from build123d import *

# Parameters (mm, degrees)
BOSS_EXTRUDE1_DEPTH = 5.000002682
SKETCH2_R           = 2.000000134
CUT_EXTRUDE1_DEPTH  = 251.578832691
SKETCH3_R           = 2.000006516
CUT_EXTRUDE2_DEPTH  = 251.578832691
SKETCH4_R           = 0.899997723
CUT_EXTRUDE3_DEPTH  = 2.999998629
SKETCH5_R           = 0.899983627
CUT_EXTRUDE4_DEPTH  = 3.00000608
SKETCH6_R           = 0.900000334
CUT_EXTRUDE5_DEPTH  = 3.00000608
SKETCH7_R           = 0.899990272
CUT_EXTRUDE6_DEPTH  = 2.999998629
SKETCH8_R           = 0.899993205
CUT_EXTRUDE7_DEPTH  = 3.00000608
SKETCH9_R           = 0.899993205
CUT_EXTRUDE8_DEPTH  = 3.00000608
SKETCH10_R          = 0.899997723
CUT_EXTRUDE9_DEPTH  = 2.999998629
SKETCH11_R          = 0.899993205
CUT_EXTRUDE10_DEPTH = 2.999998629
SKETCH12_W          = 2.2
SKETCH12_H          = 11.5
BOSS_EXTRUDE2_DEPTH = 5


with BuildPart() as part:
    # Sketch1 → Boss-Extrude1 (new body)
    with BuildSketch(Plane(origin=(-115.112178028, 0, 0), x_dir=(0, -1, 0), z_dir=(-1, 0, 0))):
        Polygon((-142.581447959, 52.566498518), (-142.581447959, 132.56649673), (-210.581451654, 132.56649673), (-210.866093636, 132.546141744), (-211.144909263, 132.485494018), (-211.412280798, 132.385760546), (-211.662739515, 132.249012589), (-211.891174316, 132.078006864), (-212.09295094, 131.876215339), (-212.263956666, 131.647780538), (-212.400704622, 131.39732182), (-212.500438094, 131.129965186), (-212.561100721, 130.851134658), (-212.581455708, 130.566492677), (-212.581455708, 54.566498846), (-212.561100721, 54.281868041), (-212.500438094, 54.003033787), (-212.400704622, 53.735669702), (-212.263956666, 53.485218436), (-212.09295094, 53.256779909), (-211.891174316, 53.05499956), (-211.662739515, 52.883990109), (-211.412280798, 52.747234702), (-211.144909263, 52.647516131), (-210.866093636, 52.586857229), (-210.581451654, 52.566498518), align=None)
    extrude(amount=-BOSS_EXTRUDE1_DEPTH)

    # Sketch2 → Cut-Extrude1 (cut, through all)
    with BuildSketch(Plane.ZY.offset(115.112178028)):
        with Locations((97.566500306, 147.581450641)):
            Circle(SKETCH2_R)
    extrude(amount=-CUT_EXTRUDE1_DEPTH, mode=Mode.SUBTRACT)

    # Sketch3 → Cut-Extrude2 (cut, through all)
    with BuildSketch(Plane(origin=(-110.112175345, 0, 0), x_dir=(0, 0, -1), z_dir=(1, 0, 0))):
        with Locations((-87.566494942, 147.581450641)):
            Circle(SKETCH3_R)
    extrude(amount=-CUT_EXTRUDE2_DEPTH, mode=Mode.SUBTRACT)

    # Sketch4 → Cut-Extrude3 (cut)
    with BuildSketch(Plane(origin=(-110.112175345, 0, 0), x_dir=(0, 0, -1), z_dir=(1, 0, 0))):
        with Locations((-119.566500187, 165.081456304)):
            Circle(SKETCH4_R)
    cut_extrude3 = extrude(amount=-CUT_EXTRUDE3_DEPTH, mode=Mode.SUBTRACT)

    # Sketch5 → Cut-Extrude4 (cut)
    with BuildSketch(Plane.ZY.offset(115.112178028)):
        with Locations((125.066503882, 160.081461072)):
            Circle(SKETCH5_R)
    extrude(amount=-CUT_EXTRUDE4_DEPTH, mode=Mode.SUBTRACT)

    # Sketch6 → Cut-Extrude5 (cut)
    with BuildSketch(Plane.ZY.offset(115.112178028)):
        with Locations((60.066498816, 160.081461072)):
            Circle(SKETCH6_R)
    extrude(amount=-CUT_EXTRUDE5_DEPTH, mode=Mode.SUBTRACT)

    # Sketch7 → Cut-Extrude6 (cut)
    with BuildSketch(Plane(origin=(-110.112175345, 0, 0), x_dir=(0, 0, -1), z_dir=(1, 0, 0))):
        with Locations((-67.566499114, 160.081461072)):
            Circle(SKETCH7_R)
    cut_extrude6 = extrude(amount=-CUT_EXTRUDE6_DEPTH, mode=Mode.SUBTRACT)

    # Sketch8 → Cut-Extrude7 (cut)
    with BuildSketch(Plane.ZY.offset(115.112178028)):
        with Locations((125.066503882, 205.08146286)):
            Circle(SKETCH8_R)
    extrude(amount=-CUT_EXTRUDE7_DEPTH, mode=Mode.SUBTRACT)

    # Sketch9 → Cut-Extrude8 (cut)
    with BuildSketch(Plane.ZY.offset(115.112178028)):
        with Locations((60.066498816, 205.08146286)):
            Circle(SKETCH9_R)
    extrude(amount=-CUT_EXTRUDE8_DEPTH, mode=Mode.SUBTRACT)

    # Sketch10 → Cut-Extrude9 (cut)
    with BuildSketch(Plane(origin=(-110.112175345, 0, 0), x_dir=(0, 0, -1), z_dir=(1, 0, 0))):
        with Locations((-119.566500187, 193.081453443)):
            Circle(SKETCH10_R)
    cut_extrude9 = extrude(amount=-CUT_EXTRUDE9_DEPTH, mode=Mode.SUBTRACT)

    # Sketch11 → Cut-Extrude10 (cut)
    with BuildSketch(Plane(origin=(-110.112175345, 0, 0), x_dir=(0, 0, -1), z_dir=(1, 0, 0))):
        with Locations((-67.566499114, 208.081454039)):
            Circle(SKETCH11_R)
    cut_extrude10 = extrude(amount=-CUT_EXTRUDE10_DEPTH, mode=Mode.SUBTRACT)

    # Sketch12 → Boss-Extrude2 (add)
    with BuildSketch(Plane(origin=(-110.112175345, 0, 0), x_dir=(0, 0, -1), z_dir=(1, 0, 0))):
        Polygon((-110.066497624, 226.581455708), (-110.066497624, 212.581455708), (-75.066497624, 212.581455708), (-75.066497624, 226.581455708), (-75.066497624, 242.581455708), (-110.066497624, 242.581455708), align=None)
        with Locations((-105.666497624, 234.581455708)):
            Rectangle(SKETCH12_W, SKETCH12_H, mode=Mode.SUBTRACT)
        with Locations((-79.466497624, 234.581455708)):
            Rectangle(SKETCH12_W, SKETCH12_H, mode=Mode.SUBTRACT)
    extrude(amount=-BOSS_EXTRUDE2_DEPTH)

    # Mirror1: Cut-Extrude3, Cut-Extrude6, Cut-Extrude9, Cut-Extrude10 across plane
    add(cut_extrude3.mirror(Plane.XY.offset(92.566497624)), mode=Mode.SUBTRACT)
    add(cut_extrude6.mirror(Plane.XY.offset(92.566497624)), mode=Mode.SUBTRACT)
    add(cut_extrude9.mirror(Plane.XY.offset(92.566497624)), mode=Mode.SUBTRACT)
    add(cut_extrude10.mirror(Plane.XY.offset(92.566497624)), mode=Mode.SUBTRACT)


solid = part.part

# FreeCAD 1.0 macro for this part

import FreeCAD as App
import Part
import Sketcher

V = App.Vector
Q = App.Units.Quantity


def add_polygon(sketch, points):
    """Adds a closed chain of lines whose ends are joined by coincident constraints."""
    first, n = sketch.GeometryCount, len(points)
    for a, b in zip(points, points[1:] + points[:1]):
        sketch.addGeometry(Part.LineSegment(App.Vector(*a, 0), App.Vector(*b, 0)), False)
    for i in range(n):
        sketch.addConstraint(Sketcher.Constraint("Coincident", first + i, 2, first + (i + 1) % n, 1))

doc = App.newDocument("Part")
params = doc.addObject("Spreadsheet::Sheet", "Params")
for row, (alias, value) in enumerate([
    ("sketch1_height", "79.999998 mm"),
    ("pad1_length", "5.000003 mm"),
    ("sketch2_diameter", "4 mm"),
    ("pocket3_length", "2.999999 mm"),
    ("pocket4_length", "3.000006 mm"),
    ("sketch6_diameter", "1.800001 mm"),
    ("pocket5_length", "3.000006 mm"),
    ("pocket6_length", "2.999999 mm"),
    ("pocket7_length", "3.000006 mm"),
    ("pocket8_length", "3.000006 mm"),
    ("pocket9_length", "2.999999 mm"),
    ("pocket10_length", "2.999999 mm"),
    ("sketch12_width", "30 mm"),
    ("sketch12_height", "35 mm"),
    ("sketch12_width2", "11.5 mm"),
    ("sketch12_height2", "2.2 mm"),
    ("pad2_length", "5 mm"),
], start=1):
    params.set(f"A{row}", alias)
    params.set(f"B{row}", "=" + value)
    params.setAlias(f"B{row}", alias)

body = doc.addObject("PartDesign::Body", "Body")

# Sketch on YZ plane
sketch1 = doc.addObject("Sketcher::SketchObject", "Sketch")
body.addObject(sketch1)
sketch1.AttachmentSupport = (doc.YZ_Plane, [""])
sketch1.MapMode = "FlatFace"
sketch1.AttachmentOffset = App.Placement(V(0, 0, -115.112178), App.Rotation())
add_polygon(sketch1, [(142.581448, 52.566499), (142.581448, 132.566497), (210.581452, 132.566497), (210.866094, 132.546142), (211.144909, 132.485494), (211.412281, 132.385761), (211.66274, 132.249013), (211.891174, 132.078007), (212.092951, 131.876215), (212.263957, 131.647781), (212.400705, 131.397322), (212.500438, 131.129965), (212.561101, 130.851135), (212.581456, 130.566493), (212.581456, 54.566499), (212.561101, 54.281868), (212.500438, 54.003034), (212.400705, 53.73567), (212.263957, 53.485218), (212.092951, 53.25678), (211.891174, 53.055), (211.66274, 52.88399), (211.412281, 52.747235), (211.144909, 52.647516), (210.866094, 52.586857), (210.581452, 52.566499)])  # lines 0-25
sketch1.addConstraint([
    Sketcher.Constraint("Vertical", 0),
    Sketcher.Constraint("Horizontal", 1),
    Sketcher.Constraint("Vertical", 13),
    Sketcher.Constraint("Horizontal", 25),
    Sketcher.Constraint("Perpendicular", 11, 23),
    Sketcher.Constraint("Vertical", 11, 2, 14, 2),
    Sketcher.Constraint("Vertical", 10, 2, 15, 2),
    Sketcher.Constraint("Vertical", 9, 2, 16, 2),
    Sketcher.Constraint("Vertical", 8, 2, 17, 2),
    Sketcher.Constraint("Vertical", 7, 2, 18, 2),
    Sketcher.Constraint("Vertical", 6, 2, 19, 2),
    Sketcher.Constraint("Vertical", 5, 2, 20, 2),
    Sketcher.Constraint("Vertical", 4, 2, 21, 2),
    Sketcher.Constraint("Vertical", 3, 2, 22, 2),
    Sketcher.Constraint("Vertical", 2, 2, 23, 2),
    Sketcher.Constraint("Vertical", 1, 2, 24, 2),
    Sketcher.Constraint("Equal", 2, 4),
    Sketcher.Constraint("Equal", 4, 7),
    Sketcher.Constraint("Equal", 6, 8),
    Sketcher.Constraint("Equal", 5, 9),
    Sketcher.Constraint("Equal", 8, 10),
    Sketcher.Constraint("Equal", 10, 11),
    Sketcher.Constraint("Equal", 4, 12),
    Sketcher.Constraint("Equal", 9, 14),
    Sketcher.Constraint("Equal", 14, 15),
    Sketcher.Constraint("Equal", 9, 16),
    Sketcher.Constraint("Equal", 11, 17),
    Sketcher.Constraint("Equal", 11, 18),
    Sketcher.Constraint("Equal", 15, 19),
    Sketcher.Constraint("Equal", 18, 20),
    Sketcher.Constraint("Equal", 21, 22),
    Sketcher.Constraint("Equal", 12, 24),
    Sketcher.Constraint("DistanceY", 0, 1, 0, 2, Q("79.999998 mm")),
    Sketcher.Constraint("DistanceY", -1, 1, 19, 2, Q("53.055 mm")),
    Sketcher.Constraint("DistanceX", -1, 1, 11, 2, Q("212.561101 mm")),
    Sketcher.Constraint("DistanceY", -1, 1, 13, 2, Q("54.566499 mm")),
    Sketcher.Constraint("DistanceY", -1, 1, 24, 2, Q("52.566499 mm")),
    Sketcher.Constraint("DistanceX", 5, 2, 10, 2, Q("0.837699 mm")),
    Sketcher.Constraint("DistanceX", 8, 2, 12, 2, Q("0.317499 mm")),
    Sketcher.Constraint("DistanceY", 15, 2, 11, 2, Q("76.848101 mm")),
    Sketcher.Constraint("DistanceY", 16, 2, 14, 2, Q("0.546198 mm")),
    Sketcher.Constraint("Distance", 2, Q("0.285369 mm")),
    Sketcher.Constraint("Distance", 5, Q("0.285359 mm")),
    Sketcher.Constraint("Distance", 6, Q("0.285351 mm")),
    Sketcher.Constraint("Distance", 22, Q("0.285362 mm")),
    Sketcher.Constraint("DistanceX", 1, 1, 1, 2, Q("68.000004 mm")),
    Sketcher.Constraint("DistanceY", 13, 2, 13, 1, Q("75.999994 mm")),
    Sketcher.Constraint("DistanceX", -1, 1, 1, 2, Q("210.581452 mm")),
    Sketcher.Constraint("DistanceY", -1, 1, 2, 2, Q("132.546142 mm")),
    Sketcher.Constraint("DistanceX", -1, 1, 3, 2, Q("211.144909 mm")),
    Sketcher.Constraint("DistanceX", -1, 1, 4, 2, Q("211.412281 mm")),
    Sketcher.Constraint("DistanceY", -1, 1, 4, 2, Q("132.385761 mm")),
])
sketch1.setExpression("Constraints[58]", "Params.sketch1_height")
pad1 = doc.addObject("PartDesign::Pad", "Pad")
body.addObject(pad1)
pad1.Profile = sketch1
pad1.setExpression("Length", "Params.pad1_length")

# Sketch on YZ plane
sketch2 = doc.addObject("Sketcher::SketchObject", "Sketch001")
body.addObject(sketch2)
sketch2.AttachmentSupport = (doc.YZ_Plane, [""])
sketch2.MapMode = "FlatFace"
sketch2.AttachmentOffset = App.Placement(V(0, 0, -115.112178), App.Rotation())
sketch2.addGeometry(Part.Circle(V(147.581451, 97.5665, 0), V(0, 0, 1), 2), False)
sketch2.addConstraint([
    Sketcher.Constraint("Diameter", 0, Q("4 mm")),
    Sketcher.Constraint("DistanceY", -1, 1, 0, 3, Q("97.5665 mm")),
    Sketcher.Constraint("DistanceX", -1, 1, 0, 3, Q("147.581451 mm")),
])
sketch2.setExpression("Constraints[0]", "Params.sketch2_diameter")
pocket1 = doc.addObject("PartDesign::Pocket", "Pocket")
body.addObject(pocket1)
pocket1.Profile = sketch2
pocket1.Type = "ThroughAll"
pocket1.Reversed = True

# Sketch on YZ plane
sketch3 = doc.addObject("Sketcher::SketchObject", "Sketch002")
body.addObject(sketch3)
sketch3.AttachmentSupport = (doc.YZ_Plane, [""])
sketch3.MapMode = "FlatFace"
sketch3.AttachmentOffset = App.Placement(V(0, 0, -110.112175), App.Rotation())
sketch3.addGeometry(Part.Circle(V(147.581451, 87.566495, 0), V(0, 0, 1), 2.000007), False)
sketch3.addConstraint([
    Sketcher.Constraint("Diameter", 0, Q("4.000013 mm")),
    Sketcher.Constraint("DistanceX", -1, 1, 0, 3, Q("147.581451 mm")),
    Sketcher.Constraint("DistanceY", -1, 1, 0, 3, Q("87.566495 mm")),
])
pocket2 = doc.addObject("PartDesign::Pocket", "Pocket001")
body.addObject(pocket2)
pocket2.Profile = sketch3
pocket2.Type = "ThroughAll"

# Sketch on YZ plane
sketch4 = doc.addObject("Sketcher::SketchObject", "Sketch003")
body.addObject(sketch4)
sketch4.AttachmentSupport = (doc.YZ_Plane, [""])
sketch4.MapMode = "FlatFace"
sketch4.AttachmentOffset = App.Placement(V(0, 0, -110.112175), App.Rotation())
sketch4.addGeometry(Part.Circle(V(165.081456, 119.5665, 0), V(0, 0, 1), 0.899998), False)
sketch4.addConstraint([
    Sketcher.Constraint("Diameter", 0, Q("1.799995 mm")),
    Sketcher.Constraint("DistanceY", -1, 1, 0, 3, Q("119.5665 mm")),
    Sketcher.Constraint("DistanceX", -1, 1, 0, 3, Q("165.081456 mm")),
])
pocket3 = doc.addObject("PartDesign::Pocket", "Pocket002")
body.addObject(pocket3)
pocket3.Profile = sketch4
pocket3.setExpression("Length", "Params.pocket3_length")

# Sketch on YZ plane
sketch5 = doc.addObject("Sketcher::SketchObject", "Sketch004")
body.addObject(sketch5)
sketch5.AttachmentSupport = (doc.YZ_Plane, [""])
sketch5.MapMode = "FlatFace"
sketch5.AttachmentOffset = App.Placement(V(0, 0, -115.112178), App.Rotation())
sketch5.addGeometry(Part.Circle(V(160.081461, 125.066504, 0), V(0, 0, 1), 0.899984), False)
sketch5.addConstraint([
    Sketcher.Constraint("Diameter", 0, Q("1.799967 mm")),
    Sketcher.Constraint("DistanceX", -1, 1, 0, 3, Q("160.081461 mm")),
    Sketcher.Constraint("DistanceY", -1, 1, 0, 3, Q("125.066504 mm")),
])
pocket4 = doc.addObject("PartDesign::Pocket", "Pocket003")
body.addObject(pocket4)
pocket4.Profile = sketch5
pocket4.setExpression("Length", "Params.pocket4_length")
pocket4.Reversed = True

# Sketch on YZ plane
sketch6 = doc.addObject("Sketcher::SketchObject", "Sketch005")
body.addObject(sketch6)
sketch6.AttachmentSupport = (doc.YZ_Plane, [""])
sketch6.MapMode = "FlatFace"
sketch6.AttachmentOffset = App.Placement(V(0, 0, -115.112178), App.Rotation())
sketch6.addGeometry(Part.Circle(V(160.081461, 60.066499, 0), V(0, 0, 1), 0.9), False)
sketch6.addConstraint([
    Sketcher.Constraint("Diameter", 0, Q("1.800001 mm")),
    Sketcher.Constraint("DistanceY", -1, 1, 0, 3, Q("60.066499 mm")),
    Sketcher.Constraint("DistanceX", -1, 1, 0, 3, Q("160.081461 mm")),
])
sketch6.setExpression("Constraints[0]", "Params.sketch6_diameter")
pocket5 = doc.addObject("PartDesign::Pocket", "Pocket004")
body.addObject(pocket5)
pocket5.Profile = sketch6
pocket5.setExpression("Length", "Params.pocket5_length")
pocket5.Reversed = True

# Sketch on YZ plane
sketch7 = doc.addObject("Sketcher::SketchObject", "Sketch006")
body.addObject(sketch7)
sketch7.AttachmentSupport = (doc.YZ_Plane, [""])
sketch7.MapMode = "FlatFace"
sketch7.AttachmentOffset = App.Placement(V(0, 0, -110.112175), App.Rotation())
sketch7.addGeometry(Part.Circle(V(160.081461, 67.566499, 0), V(0, 0, 1), 0.89999), False)
sketch7.addConstraint([
    Sketcher.Constraint("Diameter", 0, Q("1.799981 mm")),
    Sketcher.Constraint("DistanceY", -1, 1, 0, 3, Q("67.566499 mm")),
    Sketcher.Constraint("DistanceX", -1, 1, 0, 3, Q("160.081461 mm")),
])
pocket6 = doc.addObject("PartDesign::Pocket", "Pocket005")
body.addObject(pocket6)
pocket6.Profile = sketch7
pocket6.setExpression("Length", "Params.pocket6_length")

# Sketch on YZ plane
sketch8 = doc.addObject("Sketcher::SketchObject", "Sketch007")
body.addObject(sketch8)
sketch8.AttachmentSupport = (doc.YZ_Plane, [""])
sketch8.MapMode = "FlatFace"
sketch8.AttachmentOffset = App.Placement(V(0, 0, -115.112178), App.Rotation())
sketch8.addGeometry(Part.Circle(V(205.081463, 125.066504, 0), V(0, 0, 1), 0.899993), False)
sketch8.addConstraint([
    Sketcher.Constraint("Diameter", 0, Q("1.799986 mm")),
    Sketcher.Constraint("DistanceX", -1, 1, 0, 3, Q("205.081463 mm")),
    Sketcher.Constraint("DistanceY", -1, 1, 0, 3, Q("125.066504 mm")),
])
pocket7 = doc.addObject("PartDesign::Pocket", "Pocket006")
body.addObject(pocket7)
pocket7.Profile = sketch8
pocket7.setExpression("Length", "Params.pocket7_length")
pocket7.Reversed = True

# Sketch on YZ plane
sketch9 = doc.addObject("Sketcher::SketchObject", "Sketch008")
body.addObject(sketch9)
sketch9.AttachmentSupport = (doc.YZ_Plane, [""])
sketch9.MapMode = "FlatFace"
sketch9.AttachmentOffset = App.Placement(V(0, 0, -115.112178), App.Rotation())
sketch9.addGeometry(Part.Circle(V(205.081463, 60.066499, 0), V(0, 0, 1), 0.899993), False)
sketch9.addConstraint([
    Sketcher.Constraint("Diameter", 0, Q("1.799986 mm")),
    Sketcher.Constraint("DistanceY", -1, 1, 0, 3, Q("60.066499 mm")),
    Sketcher.Constraint("DistanceX", -1, 1, 0, 3, Q("205.081463 mm")),
])
pocket8 = doc.addObject("PartDesign::Pocket", "Pocket007")
body.addObject(pocket8)
pocket8.Profile = sketch9
pocket8.setExpression("Length", "Params.pocket8_length")
pocket8.Reversed = True

# Sketch on YZ plane
sketch10 = doc.addObject("Sketcher::SketchObject", "Sketch009")
body.addObject(sketch10)
sketch10.AttachmentSupport = (doc.YZ_Plane, [""])
sketch10.MapMode = "FlatFace"
sketch10.AttachmentOffset = App.Placement(V(0, 0, -110.112175), App.Rotation())
sketch10.addGeometry(Part.Circle(V(193.081453, 119.5665, 0), V(0, 0, 1), 0.899998), False)
sketch10.addConstraint([
    Sketcher.Constraint("Diameter", 0, Q("1.799995 mm")),
    Sketcher.Constraint("DistanceY", -1, 1, 0, 3, Q("119.5665 mm")),
    Sketcher.Constraint("DistanceX", -1, 1, 0, 3, Q("193.081453 mm")),
])
pocket9 = doc.addObject("PartDesign::Pocket", "Pocket008")
body.addObject(pocket9)
pocket9.Profile = sketch10
pocket9.setExpression("Length", "Params.pocket9_length")

# Sketch on YZ plane
sketch11 = doc.addObject("Sketcher::SketchObject", "Sketch010")
body.addObject(sketch11)
sketch11.AttachmentSupport = (doc.YZ_Plane, [""])
sketch11.MapMode = "FlatFace"
sketch11.AttachmentOffset = App.Placement(V(0, 0, -110.112175), App.Rotation())
sketch11.addGeometry(Part.Circle(V(208.081454, 67.566499, 0), V(0, 0, 1), 0.899993), False)
sketch11.addConstraint([
    Sketcher.Constraint("Diameter", 0, Q("1.799986 mm")),
    Sketcher.Constraint("DistanceY", -1, 1, 0, 3, Q("67.566499 mm")),
    Sketcher.Constraint("DistanceX", -1, 1, 0, 3, Q("208.081454 mm")),
])
pocket10 = doc.addObject("PartDesign::Pocket", "Pocket009")
body.addObject(pocket10)
pocket10.Profile = sketch11
pocket10.setExpression("Length", "Params.pocket10_length")

# Sketch on YZ plane
sketch12 = doc.addObject("Sketcher::SketchObject", "Sketch011")
body.addObject(sketch12)
sketch12.AttachmentSupport = (doc.YZ_Plane, [""])
sketch12.MapMode = "FlatFace"
sketch12.AttachmentOffset = App.Placement(V(0, 0, -110.112175), App.Rotation())
add_polygon(sketch12, [(212.581456, 110.066498), (212.581456, 75.066498), (242.581456, 75.066498), (242.581456, 110.066498)])  # lines 0-3
add_polygon(sketch12, [(228.831456, 104.566498), (228.831456, 106.766498), (240.331456, 106.766498), (240.331456, 104.566498)])  # lines 4-7
add_polygon(sketch12, [(228.831456, 78.366498), (228.831456, 80.566498), (240.331456, 80.566498), (240.331456, 78.366498)])  # lines 8-11
sketch12.addConstraint([
    Sketcher.Constraint("Vertical", 0),
    Sketcher.Constraint("Horizontal", 1),
    Sketcher.Constraint("Vertical", 2),
    Sketcher.Constraint("Horizontal", 3),
    Sketcher.Constraint("Vertical", 4),
    Sketcher.Constraint("Horizontal", 5),
    Sketcher.Constraint("Vertical", 6),
    Sketcher.Constraint("Horizontal", 7),
    Sketcher.Constraint("Vertical", 8),
    Sketcher.Constraint("Horizontal", 9),
    Sketcher.Constraint("Vertical", 10),
    Sketcher.Constraint("Horizontal", 11),
    Sketcher.Constraint("Vertical", 7, 2, 8, 2),
    Sketcher.Constraint("Vertical", 6, 2, 9, 2),
    Sketcher.Constraint("Equal", 6, 8),
    Sketcher.Constraint("DistanceX", 1, 1, 1, 2, Q("30 mm")),
    Sketcher.Constraint("DistanceY", 0, 2, 0, 1, Q("35 mm")),
    Sketcher.Constraint("DistanceX", 5, 1, 5, 2, Q("11.5 mm")),
    Sketcher.Constraint("DistanceY", 4, 1, 4, 2, Q("2.2 mm")),
    Sketcher.Constraint("DistanceY", 8, 2, 7, 2, Q("24 mm")),
    Sketcher.Constraint("DistanceY", 4, 2, 2, 2, Q("3.3 mm")),
    Sketcher.Constraint("DistanceX", 4, 2, 2, 2, Q("13.75 mm")),
    Sketcher.Constraint("DistanceX", -1, 1, 0, 2, Q("212.581456 mm")),
    Sketcher.Constraint("DistanceY", -1, 1, 0, 2, Q("75.066498 mm")),
])
sketch12.setExpression("Constraints[27]", "Params.sketch12_width")
sketch12.setExpression("Constraints[28]", "Params.sketch12_height")
sketch12.setExpression("Constraints[29]", "Params.sketch12_width2")
sketch12.setExpression("Constraints[30]", "Params.sketch12_height2")
pad2 = doc.addObject("PartDesign::Pad", "Pad001")
body.addObject(pad2)
pad2.Profile = sketch12
pad2.setExpression("Length", "Params.pad2_length")
pad2.Reversed = True
doc.recompute()

datumplane = doc.addObject("PartDesign::Plane", "DatumPlane")
body.addObject(datumplane)
datumplane.AttachmentSupport = (doc.XY_Plane, [""])
datumplane.MapMode = "FlatFace"
datumplane.AttachmentOffset = App.Placement(V(0, 0, 92.566498), App.Rotation())
mirrored = doc.addObject("PartDesign::Mirrored", "Mirrored")
body.addObject(mirrored)
mirrored.Originals = [pocket3, pocket6, pocket9, pocket10]
mirrored.MirrorPlane = (datumplane, [""])
body.Tip = mirrored

doc.recompute()
